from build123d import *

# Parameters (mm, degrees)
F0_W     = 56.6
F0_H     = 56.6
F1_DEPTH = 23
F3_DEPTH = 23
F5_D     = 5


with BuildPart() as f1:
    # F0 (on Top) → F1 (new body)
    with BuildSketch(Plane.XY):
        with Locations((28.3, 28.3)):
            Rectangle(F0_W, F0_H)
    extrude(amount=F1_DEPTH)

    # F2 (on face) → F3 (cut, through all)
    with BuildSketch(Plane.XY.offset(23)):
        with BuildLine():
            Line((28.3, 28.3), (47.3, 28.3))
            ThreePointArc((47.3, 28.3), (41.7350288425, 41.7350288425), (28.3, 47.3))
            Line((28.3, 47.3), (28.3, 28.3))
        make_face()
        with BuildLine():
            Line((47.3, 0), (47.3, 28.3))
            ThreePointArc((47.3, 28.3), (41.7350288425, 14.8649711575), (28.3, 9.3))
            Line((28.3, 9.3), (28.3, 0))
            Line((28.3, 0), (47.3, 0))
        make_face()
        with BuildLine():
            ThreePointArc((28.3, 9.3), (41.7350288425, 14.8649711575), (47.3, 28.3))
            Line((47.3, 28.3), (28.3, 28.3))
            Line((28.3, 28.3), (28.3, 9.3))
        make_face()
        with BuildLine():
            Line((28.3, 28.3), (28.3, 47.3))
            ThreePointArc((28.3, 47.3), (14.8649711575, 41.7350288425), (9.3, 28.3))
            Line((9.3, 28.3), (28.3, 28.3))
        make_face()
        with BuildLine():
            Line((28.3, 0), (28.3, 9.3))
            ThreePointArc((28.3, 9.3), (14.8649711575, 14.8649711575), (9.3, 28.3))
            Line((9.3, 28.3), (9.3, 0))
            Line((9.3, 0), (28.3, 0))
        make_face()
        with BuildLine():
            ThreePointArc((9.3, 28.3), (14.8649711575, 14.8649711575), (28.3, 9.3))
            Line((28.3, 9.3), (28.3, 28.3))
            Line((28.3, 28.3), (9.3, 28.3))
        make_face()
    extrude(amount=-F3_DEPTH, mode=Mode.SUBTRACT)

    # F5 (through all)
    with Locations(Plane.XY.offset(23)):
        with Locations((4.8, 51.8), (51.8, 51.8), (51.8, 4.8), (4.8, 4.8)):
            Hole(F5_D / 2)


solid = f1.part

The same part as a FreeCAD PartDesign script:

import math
import FreeCAD as App
import Part
import Sketcher

doc = App.newDocument("Part")
body = doc.addObject("PartDesign::Body", "Body")

# Sketch on XY plane
sketch1 = doc.addObject("Sketcher::SketchObject", "Sketch")
body.addObject(sketch1)
sketch1.AttachmentSupport = (doc.XY_Plane, [""])
sketch1.MapMode = "FlatFace"
sketch1.addGeometry([
    Part.LineSegment(App.Vector(0, 57, 0), App.Vector(0, 0, 0)),
    Part.LineSegment(App.Vector(0, 0, 0), App.Vector(57, 0, 0)),
    Part.LineSegment(App.Vector(57, 0, 0), App.Vector(57, 57, 0)),
    Part.LineSegment(App.Vector(57, 57, 0), App.Vector(0, 57, 0)),
], False)
sketch1.addConstraint([
    Sketcher.Constraint("Coincident", 0, 2, 1, 1),
    Sketcher.Constraint("Coincident", 1, 2, 2, 1),
    Sketcher.Constraint("Coincident", 2, 2, 3, 1),
    Sketcher.Constraint("Coincident", 3, 2, 0, 1),
    Sketcher.Constraint("Vertical", 0),
    Sketcher.Constraint("Horizontal", 1),
    Sketcher.Constraint("Vertical", 2),
    Sketcher.Constraint("Horizontal", 3),
    Sketcher.Constraint("Coincident", 0, 2, -1, 1),
    Sketcher.Constraint("Equal", 3, 0),
    Sketcher.Constraint("DistanceX", 1, 1, 1, 2, 56.6),
])
pad1 = doc.addObject("PartDesign::Pad", "Pad")
body.addObject(pad1)
pad1.Profile = sketch1
pad1.Length = 23

# Sketch on XY plane
sketch2 = doc.addObject("Sketcher::SketchObject", "Sketch001")
body.addObject(sketch2)
sketch2.AttachmentSupport = (doc.XY_Plane, [""])
sketch2.MapMode = "FlatFace"
sketch2.AttachmentOffset = App.Placement(App.Vector(0, 0, 23), App.Rotation())
sketch2.addGeometry([
    Part.ArcOfCircle(Part.Circle(App.Vector(28, 28, 0), App.Vector(0, 0, 1), 19), math.radians(90), math.radians(180)),  # 0
    Part.LineSegment(App.Vector(9, 28, 0), App.Vector(9, 0, 0)),  # 1
    Part.LineSegment(App.Vector(9, 0, 0), App.Vector(47, 0, 0)),  # 2
    Part.LineSegment(App.Vector(47, 0, 0), App.Vector(47, 28, 0)),  # 3
    Part.ArcOfCircle(Part.Circle(App.Vector(28, 28, 0), App.Vector(0, 0, 1), 19), math.radians(0), math.radians(90)),  # 4
], False)
sketch2.addConstraint([
    Sketcher.Constraint("Tangent", 0, 2, 1, 1),
    Sketcher.Constraint("Coincident", 1, 2, 2, 1),
    Sketcher.Constraint("Coincident", 2, 2, 3, 1),
    Sketcher.Constraint("Tangent", 3, 2, 4, 1),
    Sketcher.Constraint("Tangent", 4, 2, 0, 1),
    Sketcher.Constraint("Vertical", 1),
    Sketcher.Constraint("Horizontal", 2),
    Sketcher.Constraint("Vertical", 3),
    Sketcher.Constraint("Equal", 0, 4),
    Sketcher.Constraint("PointOnObject", 1, 2, -1),
    Sketcher.Constraint("Vertical", 0, 3, 4, 2),
    Sketcher.Constraint("Radius", 0, 19.0),
    Sketcher.Constraint("DistanceY", 1, 2, 1, 1, 28.3),
    Sketcher.Constraint("DistanceX", -1, 1, 0, 3, 28.3),
])
pocket1 = doc.addObject("PartDesign::Pocket", "Pocket")
body.addObject(pocket1)
pocket1.Profile = sketch2
pocket1.Type = "ThroughAll"

# Sketch on XY plane
sketch3 = doc.addObject("Sketcher::SketchObject", "Sketch002")
body.addObject(sketch3)
sketch3.AttachmentSupport = (doc.XY_Plane, [""])
sketch3.MapMode = "FlatFace"
sketch3.AttachmentOffset = App.Placement(App.Vector(0, 0, 23), App.Rotation())
sketch3.addGeometry([
    Part.Circle(App.Vector(4.8, 51.8, 0), App.Vector(0, 0, 1), 2.5),
    Part.Circle(App.Vector(51.8, 51.8, 0), App.Vector(0, 0, 1), 2.5),
    Part.Circle(App.Vector(51.8, 4.8, 0), App.Vector(0, 0, 1), 2.5),
    Part.Circle(App.Vector(4.8, 4.8, 0), App.Vector(0, 0, 1), 2.5),
], False)
sketch3.addConstraint([
    Sketcher.Constraint("Equal", 0, 1),
    Sketcher.Constraint("Equal", 1, 2),
    Sketcher.Constraint("Equal", 2, 3),
    Sketcher.Constraint("Horizontal", 0, 3, 1, 3),
    Sketcher.Constraint("Horizontal", 2, 3, 3, 3),
    Sketcher.Constraint("Vertical", 1, 3, 2, 3),
    Sketcher.Constraint("Vertical", 0, 3, 3, 3),
    Sketcher.Constraint("Diameter", 0, 5.0),
    Sketcher.Constraint("DistanceX", 0, 3, 1, 3, 47.0),
    Sketcher.Constraint("DistanceY", 2, 3, 1, 3, 47.0),
    Sketcher.Constraint("DistanceX", -1, 1, 0, 3, 4.8),
    Sketcher.Constraint("DistanceY", -1, 1, 0, 3, 51.8),
])
doc.recompute()
hole = doc.addObject("PartDesign::Hole", "Hole")
body.addObject(hole)
hole.Profile = sketch3
hole.ThreadType = "None"
hole.Diameter = 5
hole.DepthType = "ThroughAll"

doc.recompute()
